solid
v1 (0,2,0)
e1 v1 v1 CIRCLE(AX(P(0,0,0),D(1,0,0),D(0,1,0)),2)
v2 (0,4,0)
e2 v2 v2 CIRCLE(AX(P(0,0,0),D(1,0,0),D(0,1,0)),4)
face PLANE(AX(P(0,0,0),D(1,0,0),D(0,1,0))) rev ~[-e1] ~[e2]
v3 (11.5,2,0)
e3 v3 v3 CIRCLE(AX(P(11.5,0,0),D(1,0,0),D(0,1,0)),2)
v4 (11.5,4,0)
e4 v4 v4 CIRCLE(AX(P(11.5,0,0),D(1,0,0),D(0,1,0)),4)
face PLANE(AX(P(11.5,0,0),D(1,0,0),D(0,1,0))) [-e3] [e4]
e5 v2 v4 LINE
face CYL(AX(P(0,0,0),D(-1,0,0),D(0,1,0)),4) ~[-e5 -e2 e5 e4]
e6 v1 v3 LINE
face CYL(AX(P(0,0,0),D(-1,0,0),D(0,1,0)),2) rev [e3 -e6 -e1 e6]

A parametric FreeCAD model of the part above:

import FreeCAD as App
import Part
import Sketcher
from FreeCAD import Vector

doc = App.newDocument("Part")
params = doc.addObject("Spreadsheet::Sheet", "Params")
for row, (alias, value) in enumerate([
    ("sketch1_diameter", "8 mm"),
    ("sketch1_diameter2", "4 mm"),
    ("pad1_length", "11.5 mm"),
], start=1):
    params.set(f"A{row}", alias)
    params.set(f"B{row}", "=" + value)
    params.setAlias(f"B{row}", alias)

body = doc.addObject("PartDesign::Body", "Body")

# Sketch on YZ plane
sketch1 = body.newObject("Sketcher::SketchObject", "Sketch")
sketch1.AttachmentSupport = (doc.getObject("YZ_Plane"), [""])
sketch1.MapMode = "FlatFace"
sketch1.addGeometry(Part.Circle(Vector(0, 0, 0), Vector(0, 0, 1), 4), False)
sketch1.addGeometry(Part.Circle(Vector(0, 0, 0), Vector(0, 0, 1), 2), False)
sketch1.addConstraint(Sketcher.Constraint("Coincident", 0, 3, -1, 1))
sketch1.addConstraint(Sketcher.Constraint("Coincident", 1, 3, -1, 1))
sketch1.addConstraint(Sketcher.Constraint("Diameter", 0, 8.0))
sketch1.addConstraint(Sketcher.Constraint("Diameter", 1, 4.0))
sketch1.setExpression("Constraints[2]", "Params.sketch1_diameter")
sketch1.setExpression("Constraints[3]", "Params.sketch1_diameter2")
pad1 = body.newObject("PartDesign::Pad", "Pad")
pad1.Profile = sketch1
pad1.setExpression("Length", "Params.pad1_length")

doc.recompute()
